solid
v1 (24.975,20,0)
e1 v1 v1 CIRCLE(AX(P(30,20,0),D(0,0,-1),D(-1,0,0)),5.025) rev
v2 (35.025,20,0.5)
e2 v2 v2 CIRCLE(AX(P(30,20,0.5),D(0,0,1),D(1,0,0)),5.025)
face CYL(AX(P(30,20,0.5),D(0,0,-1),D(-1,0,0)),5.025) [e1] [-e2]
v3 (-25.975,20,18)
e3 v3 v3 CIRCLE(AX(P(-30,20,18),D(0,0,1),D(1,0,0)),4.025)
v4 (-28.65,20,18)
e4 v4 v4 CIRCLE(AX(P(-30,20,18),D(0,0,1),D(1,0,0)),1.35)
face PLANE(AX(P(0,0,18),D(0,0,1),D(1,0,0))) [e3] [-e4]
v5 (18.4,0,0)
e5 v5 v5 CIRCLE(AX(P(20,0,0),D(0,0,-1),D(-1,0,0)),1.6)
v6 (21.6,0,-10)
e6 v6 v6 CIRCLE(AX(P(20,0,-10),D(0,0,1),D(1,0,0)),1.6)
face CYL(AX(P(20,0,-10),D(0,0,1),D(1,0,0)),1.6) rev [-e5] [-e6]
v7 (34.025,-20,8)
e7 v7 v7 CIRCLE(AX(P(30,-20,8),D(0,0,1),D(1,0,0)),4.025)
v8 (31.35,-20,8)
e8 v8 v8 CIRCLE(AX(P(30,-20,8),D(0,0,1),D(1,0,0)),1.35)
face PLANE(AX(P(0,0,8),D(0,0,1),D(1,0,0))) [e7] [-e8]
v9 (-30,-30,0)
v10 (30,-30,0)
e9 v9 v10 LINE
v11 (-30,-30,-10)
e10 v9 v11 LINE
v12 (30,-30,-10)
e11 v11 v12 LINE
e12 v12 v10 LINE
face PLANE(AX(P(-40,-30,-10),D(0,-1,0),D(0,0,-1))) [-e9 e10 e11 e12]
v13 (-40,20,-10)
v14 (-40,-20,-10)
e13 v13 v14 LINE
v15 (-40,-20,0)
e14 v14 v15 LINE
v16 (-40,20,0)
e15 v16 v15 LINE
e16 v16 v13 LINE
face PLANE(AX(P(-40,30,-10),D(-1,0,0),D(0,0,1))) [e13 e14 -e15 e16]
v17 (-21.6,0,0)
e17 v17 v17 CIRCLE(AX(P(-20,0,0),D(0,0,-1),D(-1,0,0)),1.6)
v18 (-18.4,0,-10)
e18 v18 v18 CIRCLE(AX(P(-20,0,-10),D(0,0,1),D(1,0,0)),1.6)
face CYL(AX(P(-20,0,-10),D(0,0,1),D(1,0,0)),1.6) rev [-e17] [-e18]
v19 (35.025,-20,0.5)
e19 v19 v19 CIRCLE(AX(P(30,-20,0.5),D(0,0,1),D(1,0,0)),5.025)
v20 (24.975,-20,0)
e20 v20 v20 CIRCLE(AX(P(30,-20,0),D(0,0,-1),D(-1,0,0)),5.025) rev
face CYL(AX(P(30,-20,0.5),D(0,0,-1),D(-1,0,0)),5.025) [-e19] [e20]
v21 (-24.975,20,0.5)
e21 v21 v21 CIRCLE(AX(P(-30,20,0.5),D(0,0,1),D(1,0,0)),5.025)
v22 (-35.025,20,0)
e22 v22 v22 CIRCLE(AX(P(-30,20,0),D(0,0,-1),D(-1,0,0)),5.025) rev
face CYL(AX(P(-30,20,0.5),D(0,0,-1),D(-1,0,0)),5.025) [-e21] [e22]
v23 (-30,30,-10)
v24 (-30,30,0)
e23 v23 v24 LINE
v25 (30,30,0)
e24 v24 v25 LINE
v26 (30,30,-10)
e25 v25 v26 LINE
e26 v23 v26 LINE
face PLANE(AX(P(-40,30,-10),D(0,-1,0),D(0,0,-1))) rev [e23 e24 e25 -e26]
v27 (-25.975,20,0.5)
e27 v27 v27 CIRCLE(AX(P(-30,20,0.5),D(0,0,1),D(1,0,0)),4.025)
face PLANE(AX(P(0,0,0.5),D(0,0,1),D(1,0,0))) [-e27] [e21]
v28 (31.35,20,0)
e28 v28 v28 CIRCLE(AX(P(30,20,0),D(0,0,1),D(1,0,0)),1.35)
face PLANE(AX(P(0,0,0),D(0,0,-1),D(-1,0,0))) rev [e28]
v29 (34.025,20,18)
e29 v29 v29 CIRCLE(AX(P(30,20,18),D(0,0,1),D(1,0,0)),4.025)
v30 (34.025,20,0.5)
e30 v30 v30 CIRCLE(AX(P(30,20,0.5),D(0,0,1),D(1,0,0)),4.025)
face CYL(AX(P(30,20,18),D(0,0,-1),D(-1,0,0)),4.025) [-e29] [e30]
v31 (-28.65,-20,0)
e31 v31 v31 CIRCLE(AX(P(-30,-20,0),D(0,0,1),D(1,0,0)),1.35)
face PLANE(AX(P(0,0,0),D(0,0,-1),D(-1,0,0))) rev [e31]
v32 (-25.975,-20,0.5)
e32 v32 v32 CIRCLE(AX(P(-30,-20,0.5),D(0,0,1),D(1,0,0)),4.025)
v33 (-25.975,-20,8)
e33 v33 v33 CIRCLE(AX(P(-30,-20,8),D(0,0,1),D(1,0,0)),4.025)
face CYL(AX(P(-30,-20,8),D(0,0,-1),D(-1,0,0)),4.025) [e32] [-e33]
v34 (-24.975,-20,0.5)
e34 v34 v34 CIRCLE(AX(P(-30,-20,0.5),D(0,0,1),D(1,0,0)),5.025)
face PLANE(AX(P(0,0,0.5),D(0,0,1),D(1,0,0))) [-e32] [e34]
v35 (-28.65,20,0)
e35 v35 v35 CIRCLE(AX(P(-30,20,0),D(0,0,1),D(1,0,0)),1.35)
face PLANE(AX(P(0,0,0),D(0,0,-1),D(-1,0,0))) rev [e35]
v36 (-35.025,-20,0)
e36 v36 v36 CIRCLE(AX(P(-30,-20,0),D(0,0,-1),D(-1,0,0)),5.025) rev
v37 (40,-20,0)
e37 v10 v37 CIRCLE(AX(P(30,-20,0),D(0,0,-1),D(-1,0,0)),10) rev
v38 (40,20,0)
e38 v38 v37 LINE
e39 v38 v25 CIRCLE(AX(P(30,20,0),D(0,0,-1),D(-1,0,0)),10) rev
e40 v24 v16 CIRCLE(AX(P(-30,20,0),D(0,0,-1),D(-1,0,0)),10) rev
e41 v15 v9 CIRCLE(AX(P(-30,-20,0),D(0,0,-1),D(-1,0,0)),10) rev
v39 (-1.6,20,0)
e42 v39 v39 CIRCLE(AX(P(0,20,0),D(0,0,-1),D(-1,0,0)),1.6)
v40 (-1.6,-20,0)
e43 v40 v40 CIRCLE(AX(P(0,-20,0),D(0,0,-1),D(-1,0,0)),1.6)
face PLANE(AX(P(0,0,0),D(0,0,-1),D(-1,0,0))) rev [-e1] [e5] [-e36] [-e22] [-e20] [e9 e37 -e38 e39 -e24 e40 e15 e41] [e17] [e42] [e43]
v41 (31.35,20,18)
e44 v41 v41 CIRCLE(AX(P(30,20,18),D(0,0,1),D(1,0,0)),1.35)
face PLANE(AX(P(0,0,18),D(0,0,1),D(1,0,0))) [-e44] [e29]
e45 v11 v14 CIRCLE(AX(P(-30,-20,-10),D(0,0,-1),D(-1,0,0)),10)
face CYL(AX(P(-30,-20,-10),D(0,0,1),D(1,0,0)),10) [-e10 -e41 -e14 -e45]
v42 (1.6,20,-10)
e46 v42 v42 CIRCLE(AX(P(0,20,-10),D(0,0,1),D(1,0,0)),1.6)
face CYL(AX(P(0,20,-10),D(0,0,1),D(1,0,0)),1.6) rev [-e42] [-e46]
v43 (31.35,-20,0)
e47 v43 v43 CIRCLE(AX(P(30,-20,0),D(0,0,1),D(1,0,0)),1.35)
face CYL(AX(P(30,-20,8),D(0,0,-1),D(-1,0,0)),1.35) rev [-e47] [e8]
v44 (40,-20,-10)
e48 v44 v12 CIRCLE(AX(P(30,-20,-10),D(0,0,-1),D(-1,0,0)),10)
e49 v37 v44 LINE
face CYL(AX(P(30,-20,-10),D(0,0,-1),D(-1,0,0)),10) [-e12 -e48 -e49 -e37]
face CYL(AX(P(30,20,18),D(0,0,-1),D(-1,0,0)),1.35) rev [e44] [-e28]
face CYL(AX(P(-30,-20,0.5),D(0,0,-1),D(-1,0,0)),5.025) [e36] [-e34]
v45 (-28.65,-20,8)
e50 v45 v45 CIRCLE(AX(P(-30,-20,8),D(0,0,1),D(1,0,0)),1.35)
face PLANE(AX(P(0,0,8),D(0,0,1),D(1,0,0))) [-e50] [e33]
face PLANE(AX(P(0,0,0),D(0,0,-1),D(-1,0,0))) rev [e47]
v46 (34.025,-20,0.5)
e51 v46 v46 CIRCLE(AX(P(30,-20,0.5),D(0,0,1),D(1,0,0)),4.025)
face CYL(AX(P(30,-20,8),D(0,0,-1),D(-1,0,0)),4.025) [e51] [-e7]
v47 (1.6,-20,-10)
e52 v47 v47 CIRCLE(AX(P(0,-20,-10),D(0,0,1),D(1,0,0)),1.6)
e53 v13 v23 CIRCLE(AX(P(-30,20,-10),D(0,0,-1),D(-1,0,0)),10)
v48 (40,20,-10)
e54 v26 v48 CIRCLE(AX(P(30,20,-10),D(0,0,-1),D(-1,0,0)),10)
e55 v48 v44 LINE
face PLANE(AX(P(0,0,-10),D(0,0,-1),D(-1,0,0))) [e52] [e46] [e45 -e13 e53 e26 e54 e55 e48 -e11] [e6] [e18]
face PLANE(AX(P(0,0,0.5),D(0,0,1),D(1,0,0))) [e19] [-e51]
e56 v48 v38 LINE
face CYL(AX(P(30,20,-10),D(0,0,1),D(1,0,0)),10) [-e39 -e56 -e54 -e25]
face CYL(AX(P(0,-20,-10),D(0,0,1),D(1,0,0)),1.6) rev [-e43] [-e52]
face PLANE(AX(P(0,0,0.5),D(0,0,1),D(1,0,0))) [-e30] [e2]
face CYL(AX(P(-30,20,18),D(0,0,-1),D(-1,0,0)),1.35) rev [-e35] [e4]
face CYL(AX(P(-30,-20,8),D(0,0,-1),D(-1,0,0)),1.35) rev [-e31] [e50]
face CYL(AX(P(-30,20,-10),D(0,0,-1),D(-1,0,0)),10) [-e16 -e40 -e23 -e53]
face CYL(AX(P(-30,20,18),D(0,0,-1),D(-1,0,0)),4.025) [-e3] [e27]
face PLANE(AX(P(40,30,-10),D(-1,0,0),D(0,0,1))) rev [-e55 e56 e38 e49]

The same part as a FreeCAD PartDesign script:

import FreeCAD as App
import Part
import Sketcher
from FreeCAD import Vector


def edges_at(feature, points):
    """Names of the edges that pass closest to the given points."""
    edges = feature.Shape.Edges
    near = lambda p: min(range(len(edges)), key=lambda i: edges[i].distToShape(Part.Vertex(*p))[0])
    return sorted({f"Edge{near(p) + 1}" for p in points})

doc = App.newDocument("Part")
body = doc.addObject("PartDesign::Body", "Body")

# Sketch on XY plane
sketch1 = body.newObject("Sketcher::SketchObject", "Sketch")
sketch1.AttachmentSupport = (doc.getObject("XY_Plane"), [""])
sketch1.MapMode = "FlatFace"
sketch1.addGeometry([
    Part.LineSegment(Vector(-40, 30, 0), Vector(-40, -30, 0)),
    Part.LineSegment(Vector(-40, -30, 0), Vector(40, -30, 0)),
    Part.LineSegment(Vector(40, -30, 0), Vector(40, 30, 0)),
    Part.LineSegment(Vector(40, 30, 0), Vector(-40, 30, 0)),
], False)
sketch1.addConstraint([
    Sketcher.Constraint("Coincident", 0, 2, 1, 1),
    Sketcher.Constraint("Coincident", 1, 2, 2, 1),
    Sketcher.Constraint("Coincident", 2, 2, 3, 1),
    Sketcher.Constraint("Coincident", 3, 2, 0, 1),
    Sketcher.Constraint("Vertical", 0),
    Sketcher.Constraint("Horizontal", 1),
    Sketcher.Constraint("Vertical", 2),
    Sketcher.Constraint("Horizontal", 3),
    Sketcher.Constraint("Symmetric", 0, 2, 2, 2, -1, 1),
    Sketcher.Constraint("DistanceX", 1, 1, 1, 2, 80.0),
    Sketcher.Constraint("DistanceY", 0, 2, 0, 1, 60.0),
])
pad1 = body.newObject("PartDesign::Pad", "Pad")
pad1.Profile = sketch1
pad1.Length = 10
pad1.Reversed = True

# Sketch on XY plane
sketch2 = body.newObject("Sketcher::SketchObject", "Sketch001")
sketch2.AttachmentSupport = (doc.getObject("XY_Plane"), [""])
sketch2.MapMode = "FlatFace"
sketch2.addGeometry([
    Part.Circle(Vector(-30, -20, 0), Vector(0, 0, 1), 4),
    Part.Circle(Vector(-30, -20, 0), Vector(0, 0, 1), 1.4),
    Part.Circle(Vector(30, -20, 0), Vector(0, 0, 1), 4),
    Part.Circle(Vector(30, -20, 0), Vector(0, 0, 1), 1.4),
], False)
sketch2.addConstraint([
    Sketcher.Constraint("Coincident", 1, 3, 0, 3),
    Sketcher.Constraint("Coincident", 3, 3, 2, 3),
    Sketcher.Constraint("Equal", 0, 2),
    Sketcher.Constraint("Equal", 1, 3),
    Sketcher.Constraint("Symmetric", 0, 3, 2, 3, -2),
    Sketcher.Constraint("Diameter", 1, 2.7),
    Sketcher.Constraint("Diameter", 0, 8.05),
    Sketcher.Constraint("DistanceX", 0, 3, -1, 1, 30.0),
    Sketcher.Constraint("DistanceY", 0, 3, -1, 1, 20.0),
])
pad2 = body.newObject("PartDesign::Pad", "Pad001")
pad2.Profile = sketch2
pad2.Length = 8

# Sketch on XY plane
sketch3 = body.newObject("Sketcher::SketchObject", "Sketch002")
sketch3.AttachmentSupport = (doc.getObject("XY_Plane"), [""])
sketch3.MapMode = "FlatFace"
sketch3.addGeometry([
    Part.Circle(Vector(-30, 20, 0), Vector(0, 0, 1), 4),
    Part.Circle(Vector(-30, 20, 0), Vector(0, 0, 1), 1.4),
    Part.Circle(Vector(30, 20, 0), Vector(0, 0, 1), 4),
    Part.Circle(Vector(30, 20, 0), Vector(0, 0, 1), 1.4),
], False)
sketch3.addConstraint([
    Sketcher.Constraint("Coincident", 1, 3, 0, 3),
    Sketcher.Constraint("Coincident", 3, 3, 2, 3),
    Sketcher.Constraint("Equal", 0, 2),
    Sketcher.Constraint("Equal", 1, 3),
    Sketcher.Constraint("Symmetric", 0, 3, 2, 3, -2),
    Sketcher.Constraint("Diameter", 1, 2.7),
    Sketcher.Constraint("Diameter", 0, 8.05),
    Sketcher.Constraint("DistanceX", 0, 3, -1, 1, 30.0),
    Sketcher.Constraint("DistanceY", -1, 1, 0, 3, 20.0),
])
pad3 = body.newObject("PartDesign::Pad", "Pad002")
pad3.Profile = sketch3
pad3.Length = 18

# Sketch on XY plane
sketch4 = body.newObject("Sketcher::SketchObject", "Sketch003")
sketch4.AttachmentSupport = (doc.getObject("XY_Plane"), [""])
sketch4.MapMode = "FlatFace"
sketch4.addGeometry([
    Part.Circle(Vector(-30, 20, 0), Vector(0, 0, 1), 5),  # 0
    Part.Circle(Vector(-30, 20, 0), Vector(0, 0, 1), 4),  # 1
    Part.Circle(Vector(30, 20, 0), Vector(0, 0, 1), 5),  # 2
    Part.Circle(Vector(30, 20, 0), Vector(0, 0, 1), 4),  # 3
    Part.Circle(Vector(30, -20, 0), Vector(0, 0, 1), 5),  # 4
    Part.Circle(Vector(30, -20, 0), Vector(0, 0, 1), 4),  # 5
    Part.Circle(Vector(-30, -20, 0), Vector(0, 0, 1), 5),  # 6
    Part.Circle(Vector(-30, -20, 0), Vector(0, 0, 1), 4),  # 7
], False)
sketch4.addConstraint([
    Sketcher.Constraint("Coincident", 1, 3, 0, 3),
    Sketcher.Constraint("Coincident", 3, 3, 2, 3),
    Sketcher.Constraint("Coincident", 5, 3, 4, 3),
    Sketcher.Constraint("Coincident", 7, 3, 6, 3),
    Sketcher.Constraint("Equal", 0, 2),
    Sketcher.Constraint("Equal", 1, 3),
    Sketcher.Constraint("Equal", 2, 4),
    Sketcher.Constraint("Equal", 3, 5),
    Sketcher.Constraint("Equal", 4, 6),
    Sketcher.Constraint("Equal", 5, 7),
    Sketcher.Constraint("Symmetric", 0, 3, 4, 3, -1, 1),
    Sketcher.Constraint("Symmetric", 2, 3, 6, 3, -1, 1),
    Sketcher.Constraint("Symmetric", 0, 3, 2, 3, -2),
    Sketcher.Constraint("Diameter", 0, 10.05),
    Sketcher.Constraint("Diameter", 1, 8.05),
    Sketcher.Constraint("DistanceX", 0, 3, -1, 1, 30.0),
    Sketcher.Constraint("DistanceY", -1, 1, 0, 3, 20.0),
])
pad4 = body.newObject("PartDesign::Pad", "Pad003")
pad4.Profile = sketch4
pad4.Length = 0.5

# Sketch on XY plane
sketch5 = body.newObject("Sketcher::SketchObject", "Sketch004")
sketch5.AttachmentSupport = (doc.getObject("XY_Plane"), [""])
sketch5.MapMode = "FlatFace"
sketch5.addGeometry([
    Part.Circle(Vector(0, 20, 0), Vector(0, 0, 1), 1.6),
    Part.Circle(Vector(-20, 0, 0), Vector(0, 0, 1), 1.6),
    Part.Circle(Vector(0, -20, 0), Vector(0, 0, 1), 1.6),
    Part.Circle(Vector(20, 0, 0), Vector(0, 0, 1), 1.6),
], False)
sketch5.addConstraint([
    Sketcher.Constraint("Equal", 0, 1),
    Sketcher.Constraint("Equal", 1, 2),
    Sketcher.Constraint("Equal", 2, 3),
    Sketcher.Constraint("Symmetric", 0, 3, 2, 3, -1, 1),
    Sketcher.Constraint("Symmetric", 1, 3, 3, 3, -1, 1),
    Sketcher.Constraint("PointOnObject", 0, 3, -2),
    Sketcher.Constraint("PointOnObject", 1, 3, -1),
    Sketcher.Constraint("Diameter", 0, 3.2),
    Sketcher.Constraint("DistanceY", -1, 1, 0, 3, 20.0),
    Sketcher.Constraint("DistanceX", 1, 3, -1, 1, 20.0),
])
pocket1 = body.newObject("PartDesign::Pocket", "Pocket")
pocket1.Profile = sketch5
pocket1.Type = "ThroughAll"
pocket1.Midplane = True
doc.recompute()

fillet = body.newObject("PartDesign::Fillet", "Fillet")
fillet.Base = (pocket1, edges_at(pocket1, [
    (-40, 30, -5),
    (-40, -30, -5),
    (40, -30, -5),
    (40, 30, -5),
]))
fillet.Radius = 10

doc.recompute()
